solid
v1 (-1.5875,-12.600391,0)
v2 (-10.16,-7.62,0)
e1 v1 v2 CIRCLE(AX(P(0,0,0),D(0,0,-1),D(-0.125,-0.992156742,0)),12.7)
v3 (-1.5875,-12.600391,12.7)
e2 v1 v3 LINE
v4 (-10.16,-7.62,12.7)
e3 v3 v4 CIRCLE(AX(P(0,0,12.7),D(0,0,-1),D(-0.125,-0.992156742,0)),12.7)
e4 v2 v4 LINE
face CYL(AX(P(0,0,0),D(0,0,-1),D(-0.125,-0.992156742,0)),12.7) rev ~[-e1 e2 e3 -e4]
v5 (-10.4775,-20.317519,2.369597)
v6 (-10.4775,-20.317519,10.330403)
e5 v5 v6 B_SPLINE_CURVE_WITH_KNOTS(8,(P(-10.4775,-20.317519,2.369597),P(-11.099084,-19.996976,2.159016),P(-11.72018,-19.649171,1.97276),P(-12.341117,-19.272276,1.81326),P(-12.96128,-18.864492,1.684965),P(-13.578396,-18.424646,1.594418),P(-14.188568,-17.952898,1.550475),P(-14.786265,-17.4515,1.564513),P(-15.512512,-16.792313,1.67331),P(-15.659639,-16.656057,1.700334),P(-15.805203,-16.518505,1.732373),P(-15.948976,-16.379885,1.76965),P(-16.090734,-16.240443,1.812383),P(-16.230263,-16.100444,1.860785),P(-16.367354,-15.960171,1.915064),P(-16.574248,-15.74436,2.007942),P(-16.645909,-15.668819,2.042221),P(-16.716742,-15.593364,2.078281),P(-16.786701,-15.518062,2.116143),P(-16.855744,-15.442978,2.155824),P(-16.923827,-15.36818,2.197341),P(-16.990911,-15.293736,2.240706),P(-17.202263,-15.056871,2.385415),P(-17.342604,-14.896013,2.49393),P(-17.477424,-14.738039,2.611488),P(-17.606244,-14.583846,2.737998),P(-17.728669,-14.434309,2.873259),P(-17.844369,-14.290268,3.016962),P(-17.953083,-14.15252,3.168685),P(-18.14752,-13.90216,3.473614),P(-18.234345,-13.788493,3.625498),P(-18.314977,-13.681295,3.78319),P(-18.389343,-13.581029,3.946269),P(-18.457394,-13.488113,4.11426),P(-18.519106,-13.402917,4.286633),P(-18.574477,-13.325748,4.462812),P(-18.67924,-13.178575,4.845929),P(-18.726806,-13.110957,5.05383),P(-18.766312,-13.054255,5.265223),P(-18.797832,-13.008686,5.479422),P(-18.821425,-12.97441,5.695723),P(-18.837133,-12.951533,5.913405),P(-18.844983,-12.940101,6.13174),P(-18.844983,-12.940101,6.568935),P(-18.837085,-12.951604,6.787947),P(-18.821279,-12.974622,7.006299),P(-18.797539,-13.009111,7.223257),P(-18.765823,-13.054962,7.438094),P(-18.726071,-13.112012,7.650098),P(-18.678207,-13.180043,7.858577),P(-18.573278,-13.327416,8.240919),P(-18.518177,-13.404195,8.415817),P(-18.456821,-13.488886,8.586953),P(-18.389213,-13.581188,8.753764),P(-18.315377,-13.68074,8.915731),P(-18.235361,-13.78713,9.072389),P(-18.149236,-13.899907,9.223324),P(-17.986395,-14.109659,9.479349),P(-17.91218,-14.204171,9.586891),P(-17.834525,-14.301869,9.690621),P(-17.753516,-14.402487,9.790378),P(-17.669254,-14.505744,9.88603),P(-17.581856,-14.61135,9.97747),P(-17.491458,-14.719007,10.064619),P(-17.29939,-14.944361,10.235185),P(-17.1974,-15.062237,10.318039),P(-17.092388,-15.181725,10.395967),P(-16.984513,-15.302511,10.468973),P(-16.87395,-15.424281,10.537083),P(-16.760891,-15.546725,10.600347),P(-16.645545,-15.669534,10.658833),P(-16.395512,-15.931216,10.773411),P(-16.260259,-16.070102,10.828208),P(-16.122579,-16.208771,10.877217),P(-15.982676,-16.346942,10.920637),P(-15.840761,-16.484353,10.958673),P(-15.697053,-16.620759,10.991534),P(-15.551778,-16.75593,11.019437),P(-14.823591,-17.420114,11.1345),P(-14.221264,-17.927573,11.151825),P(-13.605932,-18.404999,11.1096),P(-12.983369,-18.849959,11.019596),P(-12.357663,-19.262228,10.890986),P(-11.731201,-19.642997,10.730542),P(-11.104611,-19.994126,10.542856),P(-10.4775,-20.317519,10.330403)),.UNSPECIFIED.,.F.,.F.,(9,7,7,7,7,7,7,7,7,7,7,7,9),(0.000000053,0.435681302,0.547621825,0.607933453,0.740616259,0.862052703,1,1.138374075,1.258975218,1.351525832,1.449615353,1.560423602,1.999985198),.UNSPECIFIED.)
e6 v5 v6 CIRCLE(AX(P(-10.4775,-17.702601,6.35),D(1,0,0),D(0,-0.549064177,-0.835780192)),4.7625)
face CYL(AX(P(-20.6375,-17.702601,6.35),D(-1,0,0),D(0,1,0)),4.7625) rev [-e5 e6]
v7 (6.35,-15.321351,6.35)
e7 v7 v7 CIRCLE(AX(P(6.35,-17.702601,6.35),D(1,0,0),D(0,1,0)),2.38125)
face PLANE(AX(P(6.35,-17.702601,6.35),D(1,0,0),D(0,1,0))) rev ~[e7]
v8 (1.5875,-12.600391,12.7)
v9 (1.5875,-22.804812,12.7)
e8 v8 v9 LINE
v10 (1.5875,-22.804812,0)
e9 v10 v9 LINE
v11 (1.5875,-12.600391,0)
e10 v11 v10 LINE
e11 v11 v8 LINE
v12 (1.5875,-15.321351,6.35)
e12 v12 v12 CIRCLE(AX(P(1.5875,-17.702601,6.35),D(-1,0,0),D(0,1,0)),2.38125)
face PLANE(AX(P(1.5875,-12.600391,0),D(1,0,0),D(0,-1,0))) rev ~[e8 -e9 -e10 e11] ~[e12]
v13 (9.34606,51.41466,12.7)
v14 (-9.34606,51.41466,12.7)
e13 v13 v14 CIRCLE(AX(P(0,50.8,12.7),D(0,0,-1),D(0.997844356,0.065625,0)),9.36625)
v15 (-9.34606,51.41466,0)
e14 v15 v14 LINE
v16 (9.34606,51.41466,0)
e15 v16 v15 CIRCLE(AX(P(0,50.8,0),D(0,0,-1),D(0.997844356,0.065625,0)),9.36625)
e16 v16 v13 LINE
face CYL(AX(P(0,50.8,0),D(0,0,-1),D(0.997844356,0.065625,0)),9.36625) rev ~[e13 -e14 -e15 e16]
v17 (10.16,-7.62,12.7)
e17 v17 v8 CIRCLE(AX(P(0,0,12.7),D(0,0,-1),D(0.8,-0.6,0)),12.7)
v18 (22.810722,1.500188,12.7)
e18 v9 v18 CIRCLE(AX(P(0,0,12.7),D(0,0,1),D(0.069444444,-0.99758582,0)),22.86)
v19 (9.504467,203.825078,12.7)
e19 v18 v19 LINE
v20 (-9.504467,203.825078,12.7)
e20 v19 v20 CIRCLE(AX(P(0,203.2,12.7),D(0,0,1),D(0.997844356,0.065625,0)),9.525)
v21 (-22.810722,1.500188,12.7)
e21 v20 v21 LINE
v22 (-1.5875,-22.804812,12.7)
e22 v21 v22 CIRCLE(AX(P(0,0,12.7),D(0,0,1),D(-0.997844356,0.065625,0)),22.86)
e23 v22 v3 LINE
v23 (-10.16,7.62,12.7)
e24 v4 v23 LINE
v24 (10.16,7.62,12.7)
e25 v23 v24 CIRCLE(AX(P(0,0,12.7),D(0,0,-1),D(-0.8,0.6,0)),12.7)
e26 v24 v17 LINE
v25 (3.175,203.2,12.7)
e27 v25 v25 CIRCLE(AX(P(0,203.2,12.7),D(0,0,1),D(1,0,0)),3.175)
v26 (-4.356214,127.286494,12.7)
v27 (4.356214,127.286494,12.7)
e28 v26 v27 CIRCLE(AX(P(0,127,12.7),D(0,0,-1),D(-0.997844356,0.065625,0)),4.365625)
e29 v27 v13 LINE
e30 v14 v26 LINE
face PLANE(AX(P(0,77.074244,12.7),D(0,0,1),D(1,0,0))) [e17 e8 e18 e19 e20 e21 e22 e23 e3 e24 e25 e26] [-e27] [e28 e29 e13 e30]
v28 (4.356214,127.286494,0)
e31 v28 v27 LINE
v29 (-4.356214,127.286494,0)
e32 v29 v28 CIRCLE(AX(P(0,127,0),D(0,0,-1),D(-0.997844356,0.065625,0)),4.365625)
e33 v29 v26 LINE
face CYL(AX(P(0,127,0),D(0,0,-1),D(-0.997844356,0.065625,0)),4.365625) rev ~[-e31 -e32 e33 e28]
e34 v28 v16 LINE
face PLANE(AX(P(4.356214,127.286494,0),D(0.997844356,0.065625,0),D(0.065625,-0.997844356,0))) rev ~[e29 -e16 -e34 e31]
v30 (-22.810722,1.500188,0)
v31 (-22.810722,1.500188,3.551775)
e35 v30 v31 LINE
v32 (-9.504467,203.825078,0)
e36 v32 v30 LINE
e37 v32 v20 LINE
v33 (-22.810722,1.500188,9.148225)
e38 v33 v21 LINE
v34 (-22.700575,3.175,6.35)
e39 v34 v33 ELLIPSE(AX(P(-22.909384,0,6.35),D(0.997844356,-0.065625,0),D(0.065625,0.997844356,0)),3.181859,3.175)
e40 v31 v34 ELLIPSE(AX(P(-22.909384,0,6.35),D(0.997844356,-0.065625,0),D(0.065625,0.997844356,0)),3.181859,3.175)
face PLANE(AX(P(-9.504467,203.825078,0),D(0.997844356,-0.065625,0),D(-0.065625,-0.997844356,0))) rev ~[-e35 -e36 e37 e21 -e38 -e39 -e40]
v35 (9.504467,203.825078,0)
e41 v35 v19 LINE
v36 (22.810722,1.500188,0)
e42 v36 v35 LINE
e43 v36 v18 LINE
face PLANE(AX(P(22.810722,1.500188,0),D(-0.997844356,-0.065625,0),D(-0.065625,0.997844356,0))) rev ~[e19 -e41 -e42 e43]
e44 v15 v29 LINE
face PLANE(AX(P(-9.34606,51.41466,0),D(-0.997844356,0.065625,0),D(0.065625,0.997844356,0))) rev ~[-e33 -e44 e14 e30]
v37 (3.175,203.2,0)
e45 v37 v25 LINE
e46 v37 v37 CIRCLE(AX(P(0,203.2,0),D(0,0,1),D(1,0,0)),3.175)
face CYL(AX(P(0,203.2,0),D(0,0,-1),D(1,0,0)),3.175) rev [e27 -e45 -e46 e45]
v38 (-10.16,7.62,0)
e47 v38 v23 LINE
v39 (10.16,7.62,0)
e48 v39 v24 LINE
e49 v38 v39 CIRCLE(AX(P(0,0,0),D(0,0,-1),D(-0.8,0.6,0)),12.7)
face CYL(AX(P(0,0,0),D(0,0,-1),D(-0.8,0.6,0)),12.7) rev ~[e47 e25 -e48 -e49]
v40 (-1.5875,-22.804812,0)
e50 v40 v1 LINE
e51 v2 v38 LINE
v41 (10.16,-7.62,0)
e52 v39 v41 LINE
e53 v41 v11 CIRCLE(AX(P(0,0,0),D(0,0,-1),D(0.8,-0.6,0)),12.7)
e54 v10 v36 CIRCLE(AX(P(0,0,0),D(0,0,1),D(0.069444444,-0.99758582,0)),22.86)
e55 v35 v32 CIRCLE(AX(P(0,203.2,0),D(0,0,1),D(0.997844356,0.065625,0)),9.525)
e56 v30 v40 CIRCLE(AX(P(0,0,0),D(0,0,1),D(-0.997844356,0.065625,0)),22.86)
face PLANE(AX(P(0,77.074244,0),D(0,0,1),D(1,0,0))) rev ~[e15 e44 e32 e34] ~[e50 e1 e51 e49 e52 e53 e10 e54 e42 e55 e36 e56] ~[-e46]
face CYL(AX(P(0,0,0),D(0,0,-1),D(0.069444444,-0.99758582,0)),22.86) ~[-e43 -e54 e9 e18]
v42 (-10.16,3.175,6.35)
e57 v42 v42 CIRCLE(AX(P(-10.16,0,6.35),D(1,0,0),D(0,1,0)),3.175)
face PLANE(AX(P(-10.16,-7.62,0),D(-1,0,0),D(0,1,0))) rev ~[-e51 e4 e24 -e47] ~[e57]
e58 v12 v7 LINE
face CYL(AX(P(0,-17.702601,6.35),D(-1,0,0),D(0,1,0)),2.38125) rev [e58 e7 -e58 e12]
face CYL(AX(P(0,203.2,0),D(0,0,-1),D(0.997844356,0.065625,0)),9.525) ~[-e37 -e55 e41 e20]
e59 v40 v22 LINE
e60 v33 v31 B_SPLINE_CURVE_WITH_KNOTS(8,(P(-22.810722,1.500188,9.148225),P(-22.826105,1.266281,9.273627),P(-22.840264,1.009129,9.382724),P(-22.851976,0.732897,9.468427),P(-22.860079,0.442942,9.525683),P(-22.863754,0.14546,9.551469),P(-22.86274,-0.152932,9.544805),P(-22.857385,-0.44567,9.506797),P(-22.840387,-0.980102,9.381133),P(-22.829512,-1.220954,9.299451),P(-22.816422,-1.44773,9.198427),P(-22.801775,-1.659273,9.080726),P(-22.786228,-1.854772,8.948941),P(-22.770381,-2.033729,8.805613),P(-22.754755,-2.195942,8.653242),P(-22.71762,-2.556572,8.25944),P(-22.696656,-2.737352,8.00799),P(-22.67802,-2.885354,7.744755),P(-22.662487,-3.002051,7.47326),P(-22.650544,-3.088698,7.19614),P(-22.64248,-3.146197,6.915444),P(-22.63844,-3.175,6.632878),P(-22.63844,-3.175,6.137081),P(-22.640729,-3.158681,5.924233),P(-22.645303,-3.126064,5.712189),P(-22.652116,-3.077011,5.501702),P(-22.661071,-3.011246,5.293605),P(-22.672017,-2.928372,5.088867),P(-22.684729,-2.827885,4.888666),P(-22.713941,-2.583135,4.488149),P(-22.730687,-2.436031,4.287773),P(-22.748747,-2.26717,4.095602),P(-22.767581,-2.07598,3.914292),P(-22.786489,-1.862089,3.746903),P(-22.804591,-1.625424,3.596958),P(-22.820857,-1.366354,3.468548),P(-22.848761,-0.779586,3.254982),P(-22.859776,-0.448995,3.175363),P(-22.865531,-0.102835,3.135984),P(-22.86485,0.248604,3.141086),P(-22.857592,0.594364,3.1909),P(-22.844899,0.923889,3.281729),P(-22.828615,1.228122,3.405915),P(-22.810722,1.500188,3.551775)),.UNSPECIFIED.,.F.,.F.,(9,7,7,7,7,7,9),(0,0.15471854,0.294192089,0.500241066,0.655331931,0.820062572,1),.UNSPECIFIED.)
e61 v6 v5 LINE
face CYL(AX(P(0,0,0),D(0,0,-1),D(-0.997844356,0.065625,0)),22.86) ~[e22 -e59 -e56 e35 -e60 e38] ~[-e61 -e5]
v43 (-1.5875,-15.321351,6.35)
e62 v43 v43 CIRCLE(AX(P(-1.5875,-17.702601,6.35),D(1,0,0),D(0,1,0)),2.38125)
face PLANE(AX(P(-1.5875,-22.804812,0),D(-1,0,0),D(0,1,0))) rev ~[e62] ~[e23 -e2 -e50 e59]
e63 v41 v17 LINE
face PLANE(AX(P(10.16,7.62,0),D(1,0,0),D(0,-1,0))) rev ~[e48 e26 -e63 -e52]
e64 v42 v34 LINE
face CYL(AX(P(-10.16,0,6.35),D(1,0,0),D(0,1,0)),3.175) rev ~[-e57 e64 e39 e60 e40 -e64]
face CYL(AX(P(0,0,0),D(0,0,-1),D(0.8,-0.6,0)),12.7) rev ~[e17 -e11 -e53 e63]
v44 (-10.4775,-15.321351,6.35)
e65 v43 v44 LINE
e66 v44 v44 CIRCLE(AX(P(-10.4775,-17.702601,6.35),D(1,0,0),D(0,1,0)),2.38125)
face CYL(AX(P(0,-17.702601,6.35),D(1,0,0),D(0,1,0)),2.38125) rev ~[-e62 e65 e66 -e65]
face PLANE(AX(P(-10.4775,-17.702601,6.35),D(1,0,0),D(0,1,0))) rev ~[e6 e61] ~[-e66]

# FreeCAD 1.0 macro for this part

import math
import FreeCAD as App
import Part
import Sketcher

V = App.Vector
Q = App.Units.Quantity

doc = App.newDocument("Part")
body = doc.addObject("PartDesign::Body", "Body")

# Sketch on XY plane
sketch1 = doc.addObject("Sketcher::SketchObject", "Sketch")
body.addObject(sketch1)
sketch1.AttachmentSupport = (doc.XY_Plane, [""])
sketch1.MapMode = "FlatFace"
sketch1.addGeometry([
    Part.LineSegment(V(-9.5, 203.8, 0), V(-22.8, 1.5, 0)),  # 0
    Part.ArcOfCircle(Part.Circle(V(0, 0, 0), V(0, 0, 1), 22.9), math.radians(176), math.radians(266)),  # 1
    Part.LineSegment(V(-1.6, -22.8, 0), V(-1.6, -12.6, 0)),  # 2
    Part.ArcOfCircle(Part.Circle(V(0, 0, 0), V(0, 0, 1), 12.7), math.radians(-143), math.radians(-97)),  # 3
    Part.LineSegment(V(-10.2, -7.6, 0), V(-10.2, 7.6, 0)),  # 4
    Part.ArcOfCircle(Part.Circle(V(0, 0, 0), V(0, 0, 1), 12.7), math.radians(37), math.radians(143)),  # 5
    Part.LineSegment(V(10.2, 7.6, 0), V(10.2, -7.6, 0)),  # 6
    Part.ArcOfCircle(Part.Circle(V(0, 0, 0), V(0, 0, 1), 12.7), math.radians(-83), math.radians(-37)),  # 7
    Part.LineSegment(V(1.6, -12.6, 0), V(1.6, -22.8, 0)),  # 8
    Part.ArcOfCircle(Part.Circle(V(0, 0, 0), V(0, 0, 1), 22.9), math.radians(-86), math.radians(4)),  # 9
    Part.LineSegment(V(22.8, 1.5, 0), V(9.5, 203.8, 0)),  # 10
    Part.ArcOfCircle(Part.Circle(V(0, 203.2, 0), V(0, 0, 1), 9.5), math.radians(4), math.radians(176)),  # 11
    Part.LineSegment(V(4.4, 127.3, 0), V(9.3, 51.4, 0)),  # 12
    Part.ArcOfCircle(Part.Circle(V(0, 50.8, 0), V(0, 0, 1), 9.4), math.radians(176), math.radians(364)),  # 13
    Part.LineSegment(V(-9.3, 51.4, 0), V(-4.4, 127.3, 0)),  # 14
    Part.ArcOfCircle(Part.Circle(V(0, 127, 0), V(0, 0, 1), 4.4), math.radians(4), math.radians(176)),  # 15
    Part.Circle(V(0, 203.2, 0), V(0, 0, 1), 3.2),  # 16
], False)
sketch1.addConstraint([
    Sketcher.Constraint("Tangent", 0, 2, 1, 1),
    Sketcher.Constraint("Coincident", 1, 2, 2, 1),
    Sketcher.Constraint("Coincident", 2, 2, 3, 2),
    Sketcher.Constraint("Coincident", 3, 1, 4, 1),
    Sketcher.Constraint("Coincident", 4, 2, 5, 2),
    Sketcher.Constraint("Coincident", 5, 1, 6, 1),
    Sketcher.Constraint("Coincident", 6, 2, 7, 2),
    Sketcher.Constraint("Coincident", 7, 1, 8, 1),
    Sketcher.Constraint("Coincident", 8, 2, 9, 1),
    Sketcher.Constraint("Tangent", 9, 2, 10, 1),
    Sketcher.Constraint("Tangent", 10, 2, 11, 1),
    Sketcher.Constraint("Tangent", 11, 2, 0, 1),
    Sketcher.Constraint("Tangent", 12, 2, 13, 2),
    Sketcher.Constraint("Tangent", 13, 1, 14, 1),
    Sketcher.Constraint("Tangent", 14, 2, 15, 2),
    Sketcher.Constraint("Tangent", 15, 1, 12, 1),
    Sketcher.Constraint("Vertical", 2),
    Sketcher.Constraint("Vertical", 4),
    Sketcher.Constraint("Vertical", 6),
    Sketcher.Constraint("Vertical", 8),
    Sketcher.Constraint("Coincident", 1, 3, -1, 1),
    Sketcher.Constraint("Coincident", 3, 3, -1, 1),
    Sketcher.Constraint("Coincident", 5, 3, -1, 1),
    Sketcher.Constraint("Coincident", 7, 3, -1, 1),
    Sketcher.Constraint("Coincident", 9, 3, -1, 1),
    Sketcher.Constraint("Coincident", 16, 3, 11, 3),
    Sketcher.Constraint("Equal", 3, 5),
    Sketcher.Constraint("Equal", 5, 7),
    Sketcher.Constraint("Equal", 1, 9),
    Sketcher.Constraint("Symmetric", 12, 2, 13, 1, -2),
    Sketcher.Constraint("PointOnObject", 11, 3, -2),
    Sketcher.Constraint("Parallel", 10, 12),
    Sketcher.Constraint("Horizontal", 4, 2, 5, 1),
    Sketcher.Constraint("Horizontal", 2, 2, 7, 1),
    Sketcher.Constraint("Radius", 1, Q("0.9 in")),
    Sketcher.Constraint("Radius", 3, Q("0.5 in")),
    Sketcher.Constraint("Diameter", 16, Q("0.25 in")),
    Sketcher.Constraint("DistanceY", 4, 1, 4, 2, Q("0.6 in")),
    Sketcher.Constraint("DistanceY", -1, 1, 11, 3, Q("8 in")),
    Sketcher.Constraint("DistanceY", -1, 1, 13, 3, Q("2 in")),
    Sketcher.Constraint("DistanceY", -1, 1, 15, 3, Q("5 in")),
    Sketcher.Constraint("Radius", 11, Q("0.375 in")),
    Sketcher.Constraint("Radius", 15, Q("0.171875 in")),
    Sketcher.Constraint("DistanceX", 1, 2, -1, 1, Q("0.0625 in")),
])
pad1 = doc.addObject("PartDesign::Pad", "Pad")
body.addObject(pad1)
pad1.Profile = sketch1
pad1.Length = Q("0.5 in")

# Sketch on YZ plane
sketch2 = doc.addObject("Sketcher::SketchObject", "Sketch001")
body.addObject(sketch2)
sketch2.AttachmentSupport = (doc.YZ_Plane, [""])
sketch2.MapMode = "FlatFace"
sketch2.AttachmentOffset = App.Placement(V(0, 0, -0.4 * 25.4), App.Rotation())
sketch2.addGeometry(Part.Circle(V(0, 6.3, 0), V(0, 0, 1), 3.2), False)
sketch2.addConstraint([
    Sketcher.Constraint("PointOnObject", 0, 3, -2),
    Sketcher.Constraint("Diameter", 0, Q("0.25 in")),
    Sketcher.Constraint("DistanceY", -1, 1, 0, 3, Q("0.25 in")),
])
pocket1 = doc.addObject("PartDesign::Pocket", "Pocket")
body.addObject(pocket1)
pocket1.Profile = sketch2
pocket1.Length = Q("1 in")

# Sketch on YZ plane
sketch3 = doc.addObject("Sketcher::SketchObject", "Sketch002")
body.addObject(sketch3)
sketch3.AttachmentSupport = (doc.YZ_Plane, [""])
sketch3.MapMode = "FlatFace"
sketch3.addGeometry(Part.Circle(V(-17.7, 6.3, 0), V(0, 0, 1), 2.4), False)
sketch3.addConstraint([
    Sketcher.Constraint("Diameter", 0, Q("0.1875 in")),
    Sketcher.Constraint("DistanceY", -1, 1, 0, 3, Q("0.25 in")),
    Sketcher.Constraint("DistanceX", 0, 3, -1, 1, Q("17.702601 mm")),
])
pocket2 = doc.addObject("PartDesign::Pocket", "Pocket001")
body.addObject(pocket2)
pocket2.Profile = sketch3
pocket2.Type = "TwoLengths"
pocket2.Length = Q("0.25 in")
pocket2.Length2 = 22.861
pocket2.Reversed = True

# Sketch on YZ plane
sketch4 = doc.addObject("Sketcher::SketchObject", "Sketch003")
body.addObject(sketch4)
sketch4.AttachmentSupport = (doc.YZ_Plane, [""])
sketch4.MapMode = "FlatFace"
sketch4.AttachmentOffset = App.Placement(V(0, 0, -0.8125 * 25.4), App.Rotation())
sketch4.addGeometry(Part.Circle(V(-17.7, 6.3, 0), V(0, 0, 1), 4.8), False)
sketch4.addConstraint([
    Sketcher.Constraint("Diameter", 0, Q("0.375 in")),
    Sketcher.Constraint("DistanceY", -1, 1, 0, 3, Q("0.25 in")),
    Sketcher.Constraint("DistanceX", 0, 3, -1, 1, Q("17.702601 mm")),
])
pocket3 = doc.addObject("PartDesign::Pocket", "Pocket002")
body.addObject(pocket3)
pocket3.Profile = sketch4
pocket3.Length = Q("0.4 in")
pocket3.Reversed = True

doc.recompute()
